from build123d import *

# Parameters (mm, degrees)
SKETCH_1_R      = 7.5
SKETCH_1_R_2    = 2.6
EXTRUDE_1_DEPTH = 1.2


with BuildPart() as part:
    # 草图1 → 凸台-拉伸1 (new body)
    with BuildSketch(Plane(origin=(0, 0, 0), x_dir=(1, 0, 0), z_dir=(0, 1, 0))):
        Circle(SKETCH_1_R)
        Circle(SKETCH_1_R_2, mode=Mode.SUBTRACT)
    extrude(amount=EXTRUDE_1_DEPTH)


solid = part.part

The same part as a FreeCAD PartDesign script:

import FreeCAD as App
import Part
import Sketcher
from FreeCAD import Vector
Q = App.Units.Quantity

doc = App.newDocument("Part")
body = doc.addObject("PartDesign::Body", "Body")

# Sketch on XZ plane
sketch1 = doc.addObject("Sketcher::SketchObject", "Sketch")
body.addObject(sketch1)
sketch1.AttachmentSupport = (doc.XZ_Plane, [""])
sketch1.MapMode = "FlatFace"
sketch1.addGeometry([
    Part.Circle(Vector(0, 0, 0), Vector(0, 0, 1), 7.5),
    Part.Circle(Vector(0, 0, 0), Vector(0, 0, 1), 2.6),
], False)
sketch1.addConstraint([
    Sketcher.Constraint("Coincident", 0, 3, -1, 1),
    Sketcher.Constraint("Coincident", 1, 3, -1, 1),
    Sketcher.Constraint("Diameter", 0, Q("15 mm")),
    Sketcher.Constraint("Diameter", 1, Q("5.2 mm")),
])
pad1 = doc.addObject("PartDesign::Pad", "Pad")
body.addObject(pad1)
pad1.Profile = sketch1
pad1.Length = 1.2
pad1.Reversed = True

doc.recompute()
